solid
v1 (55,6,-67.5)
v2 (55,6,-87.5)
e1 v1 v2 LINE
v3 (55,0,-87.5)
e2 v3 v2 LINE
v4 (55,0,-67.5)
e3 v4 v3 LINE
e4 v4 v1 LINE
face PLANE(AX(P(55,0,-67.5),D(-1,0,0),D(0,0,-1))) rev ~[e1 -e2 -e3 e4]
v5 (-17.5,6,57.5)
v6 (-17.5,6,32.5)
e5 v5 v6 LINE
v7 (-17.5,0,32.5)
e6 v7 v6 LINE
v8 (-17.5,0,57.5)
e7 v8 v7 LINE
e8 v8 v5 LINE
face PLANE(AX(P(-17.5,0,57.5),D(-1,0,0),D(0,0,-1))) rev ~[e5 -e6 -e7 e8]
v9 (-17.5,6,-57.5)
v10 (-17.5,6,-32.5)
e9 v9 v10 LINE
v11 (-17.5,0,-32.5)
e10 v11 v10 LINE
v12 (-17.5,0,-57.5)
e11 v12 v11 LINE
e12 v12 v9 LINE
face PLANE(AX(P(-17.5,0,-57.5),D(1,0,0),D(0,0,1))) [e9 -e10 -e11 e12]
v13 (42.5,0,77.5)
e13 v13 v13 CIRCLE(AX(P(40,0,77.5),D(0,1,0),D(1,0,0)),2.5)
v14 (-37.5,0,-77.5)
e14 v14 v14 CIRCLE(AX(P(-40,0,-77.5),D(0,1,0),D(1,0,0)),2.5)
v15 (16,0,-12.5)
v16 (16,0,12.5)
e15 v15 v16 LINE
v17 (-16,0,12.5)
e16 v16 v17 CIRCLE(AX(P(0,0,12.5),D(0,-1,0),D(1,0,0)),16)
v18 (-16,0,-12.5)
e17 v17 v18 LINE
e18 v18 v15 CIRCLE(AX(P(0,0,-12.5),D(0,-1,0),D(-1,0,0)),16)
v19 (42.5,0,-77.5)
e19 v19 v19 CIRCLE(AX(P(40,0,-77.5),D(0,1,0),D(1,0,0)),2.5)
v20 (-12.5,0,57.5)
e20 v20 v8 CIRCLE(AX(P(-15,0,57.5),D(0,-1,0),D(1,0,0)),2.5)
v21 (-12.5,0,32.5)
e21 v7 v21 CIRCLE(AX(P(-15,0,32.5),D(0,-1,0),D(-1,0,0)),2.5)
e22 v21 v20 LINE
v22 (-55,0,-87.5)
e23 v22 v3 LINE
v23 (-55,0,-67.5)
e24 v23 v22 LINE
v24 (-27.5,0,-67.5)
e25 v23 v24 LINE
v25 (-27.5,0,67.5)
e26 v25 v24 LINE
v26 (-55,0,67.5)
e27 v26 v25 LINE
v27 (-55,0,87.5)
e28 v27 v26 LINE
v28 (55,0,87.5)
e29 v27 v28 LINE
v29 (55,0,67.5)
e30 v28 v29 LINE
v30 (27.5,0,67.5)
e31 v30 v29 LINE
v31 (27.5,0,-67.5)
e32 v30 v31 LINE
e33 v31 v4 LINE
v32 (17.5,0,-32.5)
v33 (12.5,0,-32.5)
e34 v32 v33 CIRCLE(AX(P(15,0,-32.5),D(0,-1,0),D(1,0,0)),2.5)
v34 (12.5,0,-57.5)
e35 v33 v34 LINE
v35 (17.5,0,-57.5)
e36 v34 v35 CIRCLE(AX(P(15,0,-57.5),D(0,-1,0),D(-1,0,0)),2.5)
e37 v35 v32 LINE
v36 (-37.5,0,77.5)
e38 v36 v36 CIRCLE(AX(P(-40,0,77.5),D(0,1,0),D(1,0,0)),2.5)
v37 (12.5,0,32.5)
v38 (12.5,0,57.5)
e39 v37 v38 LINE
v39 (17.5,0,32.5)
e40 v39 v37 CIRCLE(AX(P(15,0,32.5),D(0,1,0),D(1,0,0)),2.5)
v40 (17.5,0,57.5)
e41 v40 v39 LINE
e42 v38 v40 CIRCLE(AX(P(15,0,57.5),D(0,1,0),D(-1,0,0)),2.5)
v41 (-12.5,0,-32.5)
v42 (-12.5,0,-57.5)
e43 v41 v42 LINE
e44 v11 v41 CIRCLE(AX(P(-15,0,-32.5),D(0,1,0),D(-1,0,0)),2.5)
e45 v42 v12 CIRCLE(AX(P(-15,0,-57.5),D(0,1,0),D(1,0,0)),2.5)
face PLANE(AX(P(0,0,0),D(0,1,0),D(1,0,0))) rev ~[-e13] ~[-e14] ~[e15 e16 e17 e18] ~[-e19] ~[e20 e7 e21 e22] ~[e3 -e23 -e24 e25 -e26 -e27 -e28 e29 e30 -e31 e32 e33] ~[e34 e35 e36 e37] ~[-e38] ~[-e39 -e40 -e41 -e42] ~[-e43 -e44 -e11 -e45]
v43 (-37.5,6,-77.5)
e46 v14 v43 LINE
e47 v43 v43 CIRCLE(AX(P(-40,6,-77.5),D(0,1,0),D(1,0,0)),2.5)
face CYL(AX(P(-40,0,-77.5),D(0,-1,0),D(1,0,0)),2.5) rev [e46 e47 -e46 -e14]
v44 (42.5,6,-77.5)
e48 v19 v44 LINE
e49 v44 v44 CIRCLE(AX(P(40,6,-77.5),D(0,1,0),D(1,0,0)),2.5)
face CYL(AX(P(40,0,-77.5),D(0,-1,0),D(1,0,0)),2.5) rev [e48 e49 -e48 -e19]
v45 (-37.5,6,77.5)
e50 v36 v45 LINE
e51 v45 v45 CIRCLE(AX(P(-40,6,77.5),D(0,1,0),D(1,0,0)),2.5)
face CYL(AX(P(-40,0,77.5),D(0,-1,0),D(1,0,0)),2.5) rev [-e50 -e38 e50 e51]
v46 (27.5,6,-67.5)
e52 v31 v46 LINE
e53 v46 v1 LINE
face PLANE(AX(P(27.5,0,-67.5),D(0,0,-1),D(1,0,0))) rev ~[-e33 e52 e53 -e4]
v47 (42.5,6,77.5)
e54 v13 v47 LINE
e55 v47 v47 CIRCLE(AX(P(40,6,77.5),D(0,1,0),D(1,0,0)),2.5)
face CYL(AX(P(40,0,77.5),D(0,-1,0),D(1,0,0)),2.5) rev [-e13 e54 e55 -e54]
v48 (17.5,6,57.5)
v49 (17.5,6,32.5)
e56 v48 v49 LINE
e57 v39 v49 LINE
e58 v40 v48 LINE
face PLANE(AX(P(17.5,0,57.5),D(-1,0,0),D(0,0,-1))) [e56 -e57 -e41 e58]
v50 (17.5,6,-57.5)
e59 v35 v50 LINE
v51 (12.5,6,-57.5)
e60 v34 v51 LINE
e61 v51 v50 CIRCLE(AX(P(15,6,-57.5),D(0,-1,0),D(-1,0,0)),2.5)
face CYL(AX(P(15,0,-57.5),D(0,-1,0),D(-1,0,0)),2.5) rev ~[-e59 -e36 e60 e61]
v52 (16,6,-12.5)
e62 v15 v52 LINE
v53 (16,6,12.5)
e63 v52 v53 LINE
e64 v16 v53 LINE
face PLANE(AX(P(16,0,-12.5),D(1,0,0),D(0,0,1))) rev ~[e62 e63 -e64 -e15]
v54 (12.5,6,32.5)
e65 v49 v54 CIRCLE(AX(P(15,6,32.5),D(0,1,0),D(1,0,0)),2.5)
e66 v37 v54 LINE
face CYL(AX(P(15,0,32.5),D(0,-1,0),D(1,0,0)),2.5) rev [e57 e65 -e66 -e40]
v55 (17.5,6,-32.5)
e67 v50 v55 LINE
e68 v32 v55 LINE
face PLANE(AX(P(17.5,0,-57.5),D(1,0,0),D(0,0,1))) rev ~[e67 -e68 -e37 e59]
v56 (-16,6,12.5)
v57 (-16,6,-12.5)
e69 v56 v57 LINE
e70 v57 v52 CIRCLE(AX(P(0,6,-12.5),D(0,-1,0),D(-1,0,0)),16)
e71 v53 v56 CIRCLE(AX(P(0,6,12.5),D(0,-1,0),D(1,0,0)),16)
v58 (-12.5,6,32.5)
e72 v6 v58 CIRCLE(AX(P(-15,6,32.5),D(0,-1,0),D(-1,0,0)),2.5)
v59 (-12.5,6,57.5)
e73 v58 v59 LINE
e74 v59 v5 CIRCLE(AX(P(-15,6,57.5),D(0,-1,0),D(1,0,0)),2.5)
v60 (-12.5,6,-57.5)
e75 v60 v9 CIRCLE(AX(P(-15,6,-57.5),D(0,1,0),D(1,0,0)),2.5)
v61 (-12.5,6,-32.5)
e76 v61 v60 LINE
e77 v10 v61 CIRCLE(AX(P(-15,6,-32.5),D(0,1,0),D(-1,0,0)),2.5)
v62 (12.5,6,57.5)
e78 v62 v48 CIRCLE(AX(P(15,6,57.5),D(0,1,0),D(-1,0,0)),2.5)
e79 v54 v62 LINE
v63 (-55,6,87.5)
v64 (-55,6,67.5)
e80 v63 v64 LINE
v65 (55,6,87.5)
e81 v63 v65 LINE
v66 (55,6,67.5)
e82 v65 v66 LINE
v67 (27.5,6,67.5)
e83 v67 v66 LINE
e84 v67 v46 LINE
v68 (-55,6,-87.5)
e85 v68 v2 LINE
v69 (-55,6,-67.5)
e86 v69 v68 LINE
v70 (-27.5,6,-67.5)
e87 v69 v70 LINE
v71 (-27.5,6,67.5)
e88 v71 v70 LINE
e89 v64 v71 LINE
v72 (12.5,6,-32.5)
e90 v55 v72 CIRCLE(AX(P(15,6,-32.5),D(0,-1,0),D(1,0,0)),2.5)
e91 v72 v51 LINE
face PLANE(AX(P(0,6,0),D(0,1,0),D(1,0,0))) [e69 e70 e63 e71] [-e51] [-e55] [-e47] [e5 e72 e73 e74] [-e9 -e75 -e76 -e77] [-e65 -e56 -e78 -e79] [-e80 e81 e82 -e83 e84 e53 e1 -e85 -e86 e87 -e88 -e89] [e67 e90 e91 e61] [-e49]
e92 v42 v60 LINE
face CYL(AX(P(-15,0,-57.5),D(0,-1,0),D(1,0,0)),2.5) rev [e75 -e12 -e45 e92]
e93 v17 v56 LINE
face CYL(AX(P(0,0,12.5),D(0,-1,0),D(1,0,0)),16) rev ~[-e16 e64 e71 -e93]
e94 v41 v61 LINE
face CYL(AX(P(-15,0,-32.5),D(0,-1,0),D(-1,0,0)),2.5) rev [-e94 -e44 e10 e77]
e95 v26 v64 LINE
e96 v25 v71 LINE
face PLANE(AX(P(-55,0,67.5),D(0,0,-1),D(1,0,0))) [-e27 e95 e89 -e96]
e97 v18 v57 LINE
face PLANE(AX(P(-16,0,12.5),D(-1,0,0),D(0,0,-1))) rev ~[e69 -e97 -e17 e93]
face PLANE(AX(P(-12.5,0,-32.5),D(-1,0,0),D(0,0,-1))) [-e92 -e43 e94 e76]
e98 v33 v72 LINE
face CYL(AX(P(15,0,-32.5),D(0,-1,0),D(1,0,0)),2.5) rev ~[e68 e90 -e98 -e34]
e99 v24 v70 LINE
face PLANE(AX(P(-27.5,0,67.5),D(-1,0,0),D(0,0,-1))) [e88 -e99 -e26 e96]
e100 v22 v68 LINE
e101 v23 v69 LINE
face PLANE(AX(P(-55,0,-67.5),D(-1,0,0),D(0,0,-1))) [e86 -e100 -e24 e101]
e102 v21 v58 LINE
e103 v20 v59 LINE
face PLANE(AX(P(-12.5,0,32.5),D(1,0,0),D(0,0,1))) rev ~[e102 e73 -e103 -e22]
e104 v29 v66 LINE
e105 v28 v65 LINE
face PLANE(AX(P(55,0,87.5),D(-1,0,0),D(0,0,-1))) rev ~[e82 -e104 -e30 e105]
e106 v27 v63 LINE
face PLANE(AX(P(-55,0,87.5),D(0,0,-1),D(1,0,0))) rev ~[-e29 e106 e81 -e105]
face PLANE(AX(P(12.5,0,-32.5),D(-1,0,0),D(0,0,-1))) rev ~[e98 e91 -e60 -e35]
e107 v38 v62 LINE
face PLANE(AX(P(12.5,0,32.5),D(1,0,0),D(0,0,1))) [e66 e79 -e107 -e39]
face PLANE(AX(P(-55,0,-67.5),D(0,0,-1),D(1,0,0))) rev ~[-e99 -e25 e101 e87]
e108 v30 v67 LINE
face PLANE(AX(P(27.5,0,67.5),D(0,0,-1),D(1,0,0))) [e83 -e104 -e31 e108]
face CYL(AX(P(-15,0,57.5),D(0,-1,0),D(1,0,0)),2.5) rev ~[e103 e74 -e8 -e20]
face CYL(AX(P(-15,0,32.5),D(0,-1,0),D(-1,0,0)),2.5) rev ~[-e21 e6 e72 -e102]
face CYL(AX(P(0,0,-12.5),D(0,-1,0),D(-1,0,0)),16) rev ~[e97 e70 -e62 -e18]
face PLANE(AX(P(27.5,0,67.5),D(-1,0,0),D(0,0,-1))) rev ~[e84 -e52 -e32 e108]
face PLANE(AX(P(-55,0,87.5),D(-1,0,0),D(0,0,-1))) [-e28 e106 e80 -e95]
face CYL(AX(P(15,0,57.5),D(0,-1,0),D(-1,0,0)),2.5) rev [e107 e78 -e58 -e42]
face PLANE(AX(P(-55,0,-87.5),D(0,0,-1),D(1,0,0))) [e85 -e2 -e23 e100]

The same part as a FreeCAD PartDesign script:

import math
import FreeCAD as App
import Part
import Sketcher

V = App.Vector
Q = App.Units.Quantity

doc = App.newDocument("Part")
body = doc.addObject("PartDesign::Body", "Body")

sketch1 = doc.addObject("Sketcher::SketchObject", "Sketch")
body.addObject(sketch1)
sketch1.AttachmentSupport = (doc.XZ_Plane, [""])
sketch1.MapMode = "FlatFace"
sketch1.addGeometry([
    Part.LineSegment(V(-27.5, -67.5, 0), V(-27.5, 67.5, 0)),
    Part.LineSegment(V(-27.5, 67.5, 0), V(-55, 67.5, 0)),
    Part.LineSegment(V(-55, 67.5, 0), V(-55, 87.5, 0)),
    Part.LineSegment(V(-55, 87.5, 0), V(55, 87.5, 0)),
    Part.LineSegment(V(55, 87.5, 0), V(55, 67.5, 0)),
    Part.LineSegment(V(55, 67.5, 0), V(27.5, 67.5, 0)),
    Part.LineSegment(V(27.5, 67.5, 0), V(27.5, -67.5, 0)),
    Part.LineSegment(V(27.5, -67.5, 0), V(55, -67.5, 0)),
    Part.LineSegment(V(55, -67.5, 0), V(55, -87.5, 0)),
    Part.LineSegment(V(55, -87.5, 0), V(-55, -87.5, 0)),
    Part.LineSegment(V(-55, -87.5, 0), V(-55, -67.5, 0)),
    Part.LineSegment(V(-55, -67.5, 0), V(-27.5, -67.5, 0)),
    Part.Circle(V(-40, 77.5, 0), V(0, 0, 1), 2.5),
    Part.ArcOfCircle(Part.Circle(V(-15, 32.5, 0), V(0, 0, 1), 2.5), math.radians(180), math.radians(360)),
    Part.LineSegment(V(-12.5, 32.5, 0), V(-12.5, 57.5, 0)),
    Part.ArcOfCircle(Part.Circle(V(-15, 57.5, 0), V(0, 0, 1), 2.5), math.radians(0), math.radians(180)),
    Part.LineSegment(V(-17.5, 57.5, 0), V(-17.5, 32.5, 0)),
    Part.LineSegment(V(12.5, 57.5, 0), V(12.5, 32.5, 0)),
    Part.ArcOfCircle(Part.Circle(V(15, 32.5, 0), V(0, 0, 1), 2.5), math.radians(180), math.radians(360)),
    Part.LineSegment(V(17.5, 32.5, 0), V(17.5, 57.5, 0)),
    Part.ArcOfCircle(Part.Circle(V(15, 57.5, 0), V(0, 0, 1), 2.5), math.radians(0), math.radians(180)),
    Part.Circle(V(40, 77.5, 0), V(0, 0, 1), 2.5),
    Part.Circle(V(-40, -77.5, 0), V(0, 0, 1), 2.5),
    Part.LineSegment(V(-12.5, -57.5, 0), V(-12.5, -32.5, 0)),
    Part.ArcOfCircle(Part.Circle(V(-15, -32.5, 0), V(0, 0, 1), 2.5), math.radians(0), math.radians(180)),
    Part.LineSegment(V(-17.5, -32.5, 0), V(-17.5, -57.5, 0)),
    Part.ArcOfCircle(Part.Circle(V(-15, -57.5, 0), V(0, 0, 1), 2.5), math.radians(180), math.radians(360)),
    Part.ArcOfCircle(Part.Circle(V(0, 12.5, 0), V(0, 0, 1), 16), math.radians(0), math.radians(180)),
    Part.LineSegment(V(-16, 12.5, 0), V(-16, -12.5, 0)),
    Part.ArcOfCircle(Part.Circle(V(0, -12.5, 0), V(0, 0, 1), 16), math.radians(180), math.radians(360)),
    Part.LineSegment(V(16, -12.5, 0), V(16, 12.5, 0)),
    Part.ArcOfCircle(Part.Circle(V(15, -32.5, 0), V(0, 0, 1), 2.5), math.radians(0), math.radians(180)),
    Part.LineSegment(V(12.5, -32.5, 0), V(12.5, -57.5, 0)),
    Part.ArcOfCircle(Part.Circle(V(15, -57.5, 0), V(0, 0, 1), 2.5), math.radians(180), math.radians(360)),
    Part.LineSegment(V(17.5, -57.5, 0), V(17.5, -32.5, 0)),
    Part.Circle(V(40, -77.5, 0), V(0, 0, 1), 2.5),
], False)
sketch1.addConstraint([
    Sketcher.Constraint("Coincident", 0, 2, 1, 1),
    Sketcher.Constraint("Coincident", 1, 2, 2, 1),
    Sketcher.Constraint("Coincident", 2, 2, 3, 1),
    Sketcher.Constraint("Coincident", 3, 2, 4, 1),
    Sketcher.Constraint("Coincident", 4, 2, 5, 1),
    Sketcher.Constraint("Coincident", 5, 2, 6, 1),
    Sketcher.Constraint("Coincident", 6, 2, 7, 1),
    Sketcher.Constraint("Coincident", 7, 2, 8, 1),
    Sketcher.Constraint("Coincident", 8, 2, 9, 1),
    Sketcher.Constraint("Coincident", 9, 2, 10, 1),
    Sketcher.Constraint("Coincident", 10, 2, 11, 1),
    Sketcher.Constraint("Coincident", 11, 2, 0, 1),
    Sketcher.Constraint("Tangent", 13, 2, 14, 1),
    Sketcher.Constraint("Tangent", 14, 2, 15, 1),
    Sketcher.Constraint("Tangent", 15, 2, 16, 1),
    Sketcher.Constraint("Tangent", 16, 2, 13, 1),
    Sketcher.Constraint("Tangent", 17, 2, 18, 1),
    Sketcher.Constraint("Tangent", 18, 2, 19, 1),
    Sketcher.Constraint("Tangent", 19, 2, 20, 1),
    Sketcher.Constraint("Tangent", 20, 2, 17, 1),
    Sketcher.Constraint("Tangent", 23, 2, 24, 1),
    Sketcher.Constraint("Tangent", 24, 2, 25, 1),
    Sketcher.Constraint("Tangent", 25, 2, 26, 1),
    Sketcher.Constraint("Tangent", 26, 2, 23, 1),
    Sketcher.Constraint("Tangent", 27, 2, 28, 1),
    Sketcher.Constraint("Tangent", 28, 2, 29, 1),
    Sketcher.Constraint("Tangent", 29, 2, 30, 1),
    Sketcher.Constraint("Tangent", 30, 2, 27, 1),
    Sketcher.Constraint("Tangent", 31, 2, 32, 1),
    Sketcher.Constraint("Tangent", 32, 2, 33, 1),
    Sketcher.Constraint("Tangent", 33, 2, 34, 1),
    Sketcher.Constraint("Tangent", 34, 2, 31, 1),
    Sketcher.Constraint("Vertical", 0),
    Sketcher.Constraint("Horizontal", 1),
    Sketcher.Constraint("Vertical", 2),
    Sketcher.Constraint("Horizontal", 3),
    Sketcher.Constraint("Vertical", 4),
    Sketcher.Constraint("Horizontal", 5),
    Sketcher.Constraint("Vertical", 6),
    Sketcher.Constraint("Horizontal", 7),
    Sketcher.Constraint("Vertical", 8),
    Sketcher.Constraint("Horizontal", 9),
    Sketcher.Constraint("Vertical", 10),
    Sketcher.Constraint("Horizontal", 11),
    Sketcher.Constraint("Vertical", 14),
    Sketcher.Constraint("Vertical", 16),
    Sketcher.Constraint("Vertical", 17),
    Sketcher.Constraint("Vertical", 19),
    Sketcher.Constraint("Vertical", 23),
    Sketcher.Constraint("Vertical", 25),
    Sketcher.Constraint("Vertical", 28),
    Sketcher.Constraint("Vertical", 30),
    Sketcher.Constraint("Vertical", 32),
    Sketcher.Constraint("Vertical", 34),
    Sketcher.Constraint("Equal", 12, 13),
    Sketcher.Constraint("Equal", 15, 18),
    Sketcher.Constraint("Equal", 20, 21),
    Sketcher.Constraint("Equal", 21, 22),
    Sketcher.Constraint("Equal", 22, 24),
    Sketcher.Constraint("Equal", 26, 31),
    Sketcher.Constraint("Equal", 33, 35),
    Sketcher.Constraint("Symmetric", 21, 3, 22, 3, -1, 1),
    Sketcher.Constraint("Symmetric", 18, 3, 24, 3, -1, 1),
    Sketcher.Constraint("Symmetric", 27, 3, 29, 3, -1, 1),
    Sketcher.Constraint("Symmetric", 13, 3, 31, 3, -1, 1),
    Sketcher.Constraint("Symmetric", 12, 3, 35, 3, -1, 1),
    Sketcher.Constraint("Symmetric", 0, 2, 6, 2, -1, 1),
    Sketcher.Constraint("Symmetric", 2, 2, 8, 2, -1, 1),
    Sketcher.Constraint("Symmetric", 4, 2, 10, 2, -1, 1),
    Sketcher.Constraint("Symmetric", 13, 3, 18, 3, -2),
    Sketcher.Constraint("Symmetric", 12, 3, 21, 3, -2),
    Sketcher.Constraint("Symmetric", 1, 2, 4, 2, -2),
    Sketcher.Constraint("Horizontal", 15, 3, 20, 3),
    Sketcher.Constraint("Horizontal", 26, 3, 33, 3),
    Sketcher.Constraint("Equal", 19, 23),
    Sketcher.Constraint("Equal", 25, 28),
    Sketcher.Constraint("Diameter", 12, Q("5 mm")),
    Sketcher.Constraint("Radius", 27, Q("16 mm")),
    Sketcher.Constraint("DistanceX", 3, 1, 3, 2, Q("110 mm")),
    Sketcher.Constraint("DistanceY", 0, 1, 0, 2, Q("135 mm")),
    Sketcher.Constraint("DistanceY", 2, 1, 2, 2, Q("20 mm")),
    Sketcher.Constraint("DistanceY", 14, 1, 14, 2, Q("25 mm")),
    Sketcher.Constraint("DistanceX", 1, 2, 1, 1, Q("27.5 mm")),
    Sketcher.Constraint("DistanceX", 12, 3, -1, 1, Q("40 mm")),
    Sketcher.Constraint("DistanceX", 13, 3, -1, 1, Q("15 mm")),
    Sketcher.Constraint("DistanceY", 13, 3, 12, 3, Q("45 mm")),
    Sketcher.Constraint("DistanceY", 22, 3, 13, 3, Q("110 mm")),
])
pad1 = doc.addObject("PartDesign::Pad", "Pad")
body.addObject(pad1)
pad1.Profile = sketch1
pad1.Length = 6
pad1.Reversed = True

doc.recompute()
